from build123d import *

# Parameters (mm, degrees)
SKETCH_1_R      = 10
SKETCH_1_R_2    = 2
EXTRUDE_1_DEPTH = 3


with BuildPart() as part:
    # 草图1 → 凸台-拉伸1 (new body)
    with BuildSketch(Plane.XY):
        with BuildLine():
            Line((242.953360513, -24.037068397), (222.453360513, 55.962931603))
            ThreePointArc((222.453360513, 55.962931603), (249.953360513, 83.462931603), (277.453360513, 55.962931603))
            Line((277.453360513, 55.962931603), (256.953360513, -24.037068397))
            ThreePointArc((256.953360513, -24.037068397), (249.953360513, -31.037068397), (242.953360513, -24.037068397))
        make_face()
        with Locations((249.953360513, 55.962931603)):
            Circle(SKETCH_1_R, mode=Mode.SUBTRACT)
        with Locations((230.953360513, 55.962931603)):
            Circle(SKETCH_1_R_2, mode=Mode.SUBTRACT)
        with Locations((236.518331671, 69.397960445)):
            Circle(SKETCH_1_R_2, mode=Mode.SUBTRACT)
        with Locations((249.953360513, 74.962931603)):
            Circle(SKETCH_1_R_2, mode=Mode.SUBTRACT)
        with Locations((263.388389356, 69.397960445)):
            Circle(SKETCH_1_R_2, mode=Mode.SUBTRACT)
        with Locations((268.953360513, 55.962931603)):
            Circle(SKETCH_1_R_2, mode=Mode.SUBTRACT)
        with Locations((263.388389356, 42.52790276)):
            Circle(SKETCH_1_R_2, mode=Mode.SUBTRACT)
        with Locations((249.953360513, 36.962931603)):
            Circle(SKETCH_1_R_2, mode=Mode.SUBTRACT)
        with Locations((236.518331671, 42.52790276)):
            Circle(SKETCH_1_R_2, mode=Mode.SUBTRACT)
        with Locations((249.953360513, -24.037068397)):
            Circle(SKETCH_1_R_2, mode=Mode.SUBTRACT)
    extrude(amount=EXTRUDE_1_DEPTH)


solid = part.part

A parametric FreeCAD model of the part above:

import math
import FreeCAD as App
import Part
import Sketcher

doc = App.newDocument("Part")
body = doc.addObject("PartDesign::Body", "Body")

# Sketch on XY plane
sketch1 = body.newObject("Sketcher::SketchObject", "Sketch")
sketch1.AttachmentSupport = (doc.getObject("XY_Plane"), [""])
sketch1.MapMode = "FlatFace"
sketch1.addGeometry(Part.LineSegment(App.Vector(222.453361, 55.962932, 0), App.Vector(242.953361, -24.037068, 0)), False)
sketch1.addGeometry(Part.ArcOfCircle(Part.Circle(App.Vector(249.953361, -24.037068, 0), App.Vector(0, 0, 1), 7), math.radians(180), math.radians(360)), False)
sketch1.addGeometry(Part.LineSegment(App.Vector(256.953361, -24.037068, 0), App.Vector(277.453361, 55.962932, 0)), False)
sketch1.addGeometry(Part.ArcOfCircle(Part.Circle(App.Vector(249.953361, 55.962932, 0), App.Vector(0, 0, 1), 27.5), math.radians(0), math.radians(180)), False)
sketch1.addGeometry(Part.Circle(App.Vector(249.953361, -24.037068, 0), App.Vector(0, 0, 1), 2), False)
sketch1.addGeometry(Part.Circle(App.Vector(263.388389, 42.527903, 0), App.Vector(0, 0, 1), 2), False)
sketch1.addGeometry(Part.Circle(App.Vector(268.953361, 55.962932, 0), App.Vector(0, 0, 1), 2), False)
sketch1.addGeometry(Part.Circle(App.Vector(263.388389, 69.39796, 0), App.Vector(0, 0, 1), 2), False)
sketch1.addGeometry(Part.Circle(App.Vector(249.953361, 36.962932, 0), App.Vector(0, 0, 1), 2), False)
sketch1.addGeometry(Part.Circle(App.Vector(236.518332, 42.527903, 0), App.Vector(0, 0, 1), 2), False)
sketch1.addGeometry(Part.Circle(App.Vector(249.953361, 55.962932, 0), App.Vector(0, 0, 1), 10), False)
sketch1.addGeometry(Part.Circle(App.Vector(249.953361, 74.962932, 0), App.Vector(0, 0, 1), 2), False)
sketch1.addGeometry(Part.Circle(App.Vector(230.953361, 55.962932, 0), App.Vector(0, 0, 1), 2), False)
sketch1.addGeometry(Part.Circle(App.Vector(236.518332, 69.39796, 0), App.Vector(0, 0, 1), 2), False)
sketch1.addConstraint(Sketcher.Constraint("Coincident", 0, 2, 1, 1))
sketch1.addConstraint(Sketcher.Constraint("Coincident", 1, 2, 2, 1))
sketch1.addConstraint(Sketcher.Constraint("Coincident", 2, 2, 3, 1))
sketch1.addConstraint(Sketcher.Constraint("Coincident", 3, 2, 0, 1))
sketch1.addConstraint(Sketcher.Constraint("Coincident", 4, 3, 1, 3))
sketch1.addConstraint(Sketcher.Constraint("Coincident", 10, 3, 3, 3))
sketch1.addConstraint(Sketcher.Constraint("Equal", 4, 5))
sketch1.addConstraint(Sketcher.Constraint("Equal", 5, 6))
sketch1.addConstraint(Sketcher.Constraint("Equal", 6, 7))
sketch1.addConstraint(Sketcher.Constraint("Equal", 7, 8))
sketch1.addConstraint(Sketcher.Constraint("Equal", 8, 9))
sketch1.addConstraint(Sketcher.Constraint("Equal", 9, 11))
sketch1.addConstraint(Sketcher.Constraint("Equal", 11, 12))
sketch1.addConstraint(Sketcher.Constraint("Equal", 12, 13))
sketch1.addConstraint(Sketcher.Constraint("Horizontal", 3, 3, 6, 3))
sketch1.addConstraint(Sketcher.Constraint("Horizontal", 5, 3, 9, 3))
sketch1.addConstraint(Sketcher.Constraint("Horizontal", 10, 3, 12, 3))
sketch1.addConstraint(Sketcher.Constraint("Horizontal", 7, 3, 13, 3))
sketch1.addConstraint(Sketcher.Constraint("Horizontal", 4, 3, 0, 2))
sketch1.addConstraint(Sketcher.Constraint("Horizontal", 0, 2, 1, 2))
sketch1.addConstraint(Sketcher.Constraint("Horizontal", 12, 3, 2, 2))
sketch1.addConstraint(Sketcher.Constraint("Horizontal", 2, 2, 3, 2))
sketch1.addConstraint(Sketcher.Constraint("Vertical", 1, 3, 3, 3))
sketch1.addConstraint(Sketcher.Constraint("Vertical", 5, 3, 7, 3))
sketch1.addConstraint(Sketcher.Constraint("Vertical", 4, 3, 8, 3))
sketch1.addConstraint(Sketcher.Constraint("Vertical", 10, 3, 11, 3))
sketch1.addConstraint(Sketcher.Constraint("Vertical", 9, 3, 13, 3))
sketch1.addConstraint(Sketcher.Constraint("Diameter", 4, 4.0))
sketch1.addConstraint(Sketcher.Constraint("Diameter", 10, 20.0))
sketch1.addConstraint(Sketcher.Constraint("Radius", 1, 7.0))
sketch1.addConstraint(Sketcher.Constraint("Radius", 3, 27.5))
sketch1.addConstraint(Sketcher.Constraint("DistanceY", 1, 3, 3, 3, 80.0))
sketch1.addConstraint(Sketcher.Constraint("DistanceX", 3, 3, 6, 3, 19.0))
sketch1.addConstraint(Sketcher.Constraint("DistanceY", 8, 3, 3, 3, 19.0))
sketch1.addConstraint(Sketcher.Constraint("DistanceY", 3, 3, 11, 3, 19.0))
sketch1.addConstraint(Sketcher.Constraint("DistanceX", 12, 3, 3, 3, 19.0))
sketch1.addConstraint(Sketcher.Constraint("DistanceX", -1, 1, 1, 3, 249.953361))
sketch1.addConstraint(Sketcher.Constraint("DistanceY", 1, 3, -1, 1, 24.037068))
sketch1.addConstraint(Sketcher.Constraint("DistanceX", -1, 1, 5, 3, 263.388389))
sketch1.addConstraint(Sketcher.Constraint("DistanceY", -1, 1, 7, 3, 69.39796))
sketch1.addConstraint(Sketcher.Constraint("DistanceX", -1, 1, 9, 3, 236.518332))
sketch1.addConstraint(Sketcher.Constraint("DistanceY", 5, 3, 3, 3, 13.435029))
pad1 = body.newObject("PartDesign::Pad", "Pad")
pad1.Profile = sketch1
pad1.Length = 3

doc.recompute()
